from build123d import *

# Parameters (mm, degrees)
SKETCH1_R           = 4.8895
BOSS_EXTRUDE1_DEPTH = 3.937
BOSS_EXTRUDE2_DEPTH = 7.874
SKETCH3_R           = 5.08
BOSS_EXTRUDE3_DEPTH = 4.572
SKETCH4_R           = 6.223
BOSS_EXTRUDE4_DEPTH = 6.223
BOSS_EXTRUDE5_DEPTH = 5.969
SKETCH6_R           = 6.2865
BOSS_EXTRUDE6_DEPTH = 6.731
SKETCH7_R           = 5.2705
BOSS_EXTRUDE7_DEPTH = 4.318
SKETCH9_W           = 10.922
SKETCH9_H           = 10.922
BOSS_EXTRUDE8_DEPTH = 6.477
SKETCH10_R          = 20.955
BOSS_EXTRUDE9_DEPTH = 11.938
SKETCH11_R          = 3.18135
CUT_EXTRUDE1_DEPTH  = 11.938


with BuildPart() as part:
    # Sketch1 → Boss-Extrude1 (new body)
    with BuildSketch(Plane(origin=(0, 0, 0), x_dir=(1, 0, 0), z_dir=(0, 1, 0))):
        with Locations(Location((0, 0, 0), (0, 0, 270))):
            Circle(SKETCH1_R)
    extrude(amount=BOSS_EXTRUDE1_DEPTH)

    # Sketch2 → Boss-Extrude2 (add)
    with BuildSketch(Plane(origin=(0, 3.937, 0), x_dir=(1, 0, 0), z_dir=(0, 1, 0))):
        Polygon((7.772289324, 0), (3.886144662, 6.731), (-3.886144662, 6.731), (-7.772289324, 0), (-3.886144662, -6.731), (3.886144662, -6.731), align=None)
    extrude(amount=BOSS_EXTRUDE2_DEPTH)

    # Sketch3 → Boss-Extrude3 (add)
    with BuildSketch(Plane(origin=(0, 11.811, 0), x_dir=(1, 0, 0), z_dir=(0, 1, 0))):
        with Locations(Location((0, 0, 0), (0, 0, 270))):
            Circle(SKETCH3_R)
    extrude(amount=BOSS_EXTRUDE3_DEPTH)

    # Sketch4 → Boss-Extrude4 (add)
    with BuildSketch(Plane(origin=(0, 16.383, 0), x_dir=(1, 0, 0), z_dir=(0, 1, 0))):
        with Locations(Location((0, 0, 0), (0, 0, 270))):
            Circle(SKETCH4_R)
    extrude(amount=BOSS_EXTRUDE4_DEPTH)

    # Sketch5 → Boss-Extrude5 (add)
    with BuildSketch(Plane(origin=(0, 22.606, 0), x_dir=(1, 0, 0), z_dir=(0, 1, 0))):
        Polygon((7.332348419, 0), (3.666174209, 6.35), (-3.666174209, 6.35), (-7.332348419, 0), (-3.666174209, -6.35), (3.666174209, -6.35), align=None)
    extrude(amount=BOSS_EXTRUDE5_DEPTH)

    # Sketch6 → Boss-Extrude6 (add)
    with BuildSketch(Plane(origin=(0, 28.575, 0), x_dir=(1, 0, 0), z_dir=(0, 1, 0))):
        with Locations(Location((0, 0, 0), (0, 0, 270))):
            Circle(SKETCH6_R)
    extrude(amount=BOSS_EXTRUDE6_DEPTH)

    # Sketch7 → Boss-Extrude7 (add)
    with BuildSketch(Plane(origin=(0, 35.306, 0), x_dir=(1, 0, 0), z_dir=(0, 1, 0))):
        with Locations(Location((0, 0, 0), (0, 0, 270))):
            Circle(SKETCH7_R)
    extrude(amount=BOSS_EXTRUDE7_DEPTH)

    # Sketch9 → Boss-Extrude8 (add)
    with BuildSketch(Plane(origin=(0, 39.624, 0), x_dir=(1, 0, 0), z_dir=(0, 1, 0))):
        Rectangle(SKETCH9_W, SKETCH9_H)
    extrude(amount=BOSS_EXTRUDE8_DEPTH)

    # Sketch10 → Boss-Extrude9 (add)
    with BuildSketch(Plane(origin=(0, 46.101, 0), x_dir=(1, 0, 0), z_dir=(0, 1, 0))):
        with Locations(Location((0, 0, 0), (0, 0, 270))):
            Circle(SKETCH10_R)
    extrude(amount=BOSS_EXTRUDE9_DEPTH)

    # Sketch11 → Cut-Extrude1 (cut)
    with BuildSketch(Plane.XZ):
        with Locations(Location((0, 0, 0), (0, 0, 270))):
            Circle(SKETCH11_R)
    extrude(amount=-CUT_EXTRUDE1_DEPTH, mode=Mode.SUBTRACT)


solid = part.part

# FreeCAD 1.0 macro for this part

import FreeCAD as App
import Part
import Sketcher
Q = App.Units.Quantity


def add_polygon(sketch, points):
    """Adds a closed chain of lines whose ends are joined by coincident constraints."""
    first, n = sketch.GeometryCount, len(points)
    for a, b in zip(points, points[1:] + points[:1]):
        sketch.addGeometry(Part.LineSegment(App.Vector(*a, 0), App.Vector(*b, 0)), False)
    for i in range(n):
        sketch.addConstraint(Sketcher.Constraint("Coincident", first + i, 2, first + (i + 1) % n, 1))

doc = App.newDocument("Part")
body = doc.addObject("PartDesign::Body", "Body")

# Sketch on XZ plane
sketch1 = doc.addObject("Sketcher::SketchObject", "Sketch")
body.addObject(sketch1)
sketch1.AttachmentSupport = (doc.XZ_Plane, [""])
sketch1.MapMode = "FlatFace"
sketch1.addGeometry(Part.Circle(App.Vector(0, 0, 0), App.Vector(0, 0, 1), 4.9), False)
sketch1.addConstraint(Sketcher.Constraint("Coincident", 0, 3, -1, 1))
sketch1.addConstraint(Sketcher.Constraint("Diameter", 0, Q("0.385 in")))
pad1 = doc.addObject("PartDesign::Pad", "Pad")
body.addObject(pad1)
pad1.Profile = sketch1
pad1.Length = Q("0.155 in")
pad1.Reversed = True

# Sketch on XZ plane
sketch2 = doc.addObject("Sketcher::SketchObject", "Sketch001")
body.addObject(sketch2)
sketch2.AttachmentSupport = (doc.XZ_Plane, [""])
sketch2.MapMode = "FlatFace"
sketch2.AttachmentOffset = App.Placement(App.Vector(0, 0, -0.155 * 25.4), App.Rotation())
add_polygon(sketch2, [(8, 0), (4, -7), (-4, -7), (-8, 0), (-4, 7), (4, 7)])  # lines 0-5
sketch2.addConstraint(Sketcher.Constraint("Horizontal", 1))
sketch2.addConstraint(Sketcher.Constraint("Horizontal", 4))
sketch2.addConstraint(Sketcher.Constraint("Symmetric", 0, 2, 3, 2, -1, 1))
sketch2.addConstraint(Sketcher.Constraint("Symmetric", 2, 2, 5, 2, -1, 1))
sketch2.addConstraint(Sketcher.Constraint("PointOnObject", 2, 2, -1))
sketch2.addConstraint(Sketcher.Constraint("Parallel", 2, 5))
sketch2.addConstraint(Sketcher.Constraint("Vertical", 1, 2, 3, 2))
sketch2.addConstraint(Sketcher.Constraint("Angle", 0, Q("-120 deg")))
sketch2.addConstraint(Sketcher.Constraint("DistanceY", 1, 2, 3, 2, Q("0.53 in")))
sketch2.addConstraint(Sketcher.Constraint("DistanceX", 1, 2, 1, 1, Q("7.772289 mm")))
pad2 = doc.addObject("PartDesign::Pad", "Pad001")
body.addObject(pad2)
pad2.Profile = sketch2
pad2.Length = Q("0.31 in")
pad2.Reversed = True

# Sketch on XZ plane
sketch3 = doc.addObject("Sketcher::SketchObject", "Sketch002")
body.addObject(sketch3)
sketch3.AttachmentSupport = (doc.XZ_Plane, [""])
sketch3.MapMode = "FlatFace"
sketch3.AttachmentOffset = App.Placement(App.Vector(0, 0, -0.465 * 25.4), App.Rotation())
sketch3.addGeometry(Part.Circle(App.Vector(0, 0, 0), App.Vector(0, 0, 1), 5), False)
sketch3.addConstraint(Sketcher.Constraint("Coincident", 0, 3, -1, 1))
sketch3.addConstraint(Sketcher.Constraint("Diameter", 0, Q("0.4 in")))
pad3 = doc.addObject("PartDesign::Pad", "Pad002")
body.addObject(pad3)
pad3.Profile = sketch3
pad3.Length = Q("0.18 in")
pad3.Reversed = True

# Sketch on XZ plane
sketch4 = doc.addObject("Sketcher::SketchObject", "Sketch003")
body.addObject(sketch4)
sketch4.AttachmentSupport = (doc.XZ_Plane, [""])
sketch4.MapMode = "FlatFace"
sketch4.AttachmentOffset = App.Placement(App.Vector(0, 0, -0.645 * 25.4), App.Rotation())
sketch4.addGeometry(Part.Circle(App.Vector(0, 0, 0), App.Vector(0, 0, 1), 6), False)
sketch4.addConstraint(Sketcher.Constraint("Coincident", 0, 3, -1, 1))
sketch4.addConstraint(Sketcher.Constraint("Diameter", 0, Q("0.49 in")))
pad4 = doc.addObject("PartDesign::Pad", "Pad003")
body.addObject(pad4)
pad4.Profile = sketch4
pad4.Length = Q("0.245 in")
pad4.Reversed = True

# Sketch on XZ plane
sketch5 = doc.addObject("Sketcher::SketchObject", "Sketch004")
body.addObject(sketch5)
sketch5.AttachmentSupport = (doc.XZ_Plane, [""])
sketch5.MapMode = "FlatFace"
sketch5.AttachmentOffset = App.Placement(App.Vector(0, 0, -0.89 * 25.4), App.Rotation())
add_polygon(sketch5, [(7, 0), (4, -6), (-4, -6), (-7, 0), (-4, 6), (4, 6)])  # lines 0-5
sketch5.addConstraint(Sketcher.Constraint("Horizontal", 1))
sketch5.addConstraint(Sketcher.Constraint("Horizontal", 4))
sketch5.addConstraint(Sketcher.Constraint("Symmetric", 0, 2, 3, 2, -1, 1))
sketch5.addConstraint(Sketcher.Constraint("Symmetric", 2, 2, 5, 2, -1, 1))
sketch5.addConstraint(Sketcher.Constraint("PointOnObject", 2, 2, -1))
sketch5.addConstraint(Sketcher.Constraint("Parallel", 2, 5))
sketch5.addConstraint(Sketcher.Constraint("Vertical", 1, 2, 3, 2))
sketch5.addConstraint(Sketcher.Constraint("Angle", 0, Q("-120 deg")))
sketch5.addConstraint(Sketcher.Constraint("DistanceY", 1, 2, 3, 2, Q("0.5 in")))
sketch5.addConstraint(Sketcher.Constraint("DistanceX", 1, 2, 1, 1, Q("7.332348 mm")))
pad5 = doc.addObject("PartDesign::Pad", "Pad004")
body.addObject(pad5)
pad5.Profile = sketch5
pad5.Length = Q("0.235 in")
pad5.Reversed = True

# Sketch on XZ plane
sketch6 = doc.addObject("Sketcher::SketchObject", "Sketch005")
body.addObject(sketch6)
sketch6.AttachmentSupport = (doc.XZ_Plane, [""])
sketch6.MapMode = "FlatFace"
sketch6.AttachmentOffset = App.Placement(App.Vector(0, 0, -1.125 * 25.4), App.Rotation())
sketch6.addGeometry(Part.Circle(App.Vector(0, 0, 0), App.Vector(0, 0, 1), 6), False)
sketch6.addConstraint(Sketcher.Constraint("Coincident", 0, 3, -1, 1))
sketch6.addConstraint(Sketcher.Constraint("Diameter", 0, Q("0.495 in")))
pad6 = doc.addObject("PartDesign::Pad", "Pad005")
body.addObject(pad6)
pad6.Profile = sketch6
pad6.Length = Q("0.265 in")
pad6.Reversed = True

# Sketch on XZ plane
sketch7 = doc.addObject("Sketcher::SketchObject", "Sketch006")
body.addObject(sketch7)
sketch7.AttachmentSupport = (doc.XZ_Plane, [""])
sketch7.MapMode = "FlatFace"
sketch7.AttachmentOffset = App.Placement(App.Vector(0, 0, -1.39 * 25.4), App.Rotation())
sketch7.addGeometry(Part.Circle(App.Vector(0, 0, 0), App.Vector(0, 0, 1), 5), False)
sketch7.addConstraint(Sketcher.Constraint("Coincident", 0, 3, -1, 1))
sketch7.addConstraint(Sketcher.Constraint("Diameter", 0, Q("0.415 in")))
pad7 = doc.addObject("PartDesign::Pad", "Pad006")
body.addObject(pad7)
pad7.Profile = sketch7
pad7.Length = Q("0.17 in")
pad7.Reversed = True

# Sketch on XZ plane
sketch8 = doc.addObject("Sketcher::SketchObject", "Sketch007")
body.addObject(sketch8)
sketch8.AttachmentSupport = (doc.XZ_Plane, [""])
sketch8.MapMode = "FlatFace"
sketch8.AttachmentOffset = App.Placement(App.Vector(0, 0, -1.56 * 25.4), App.Rotation())
add_polygon(sketch8, [(-5, -5), (-5, 5), (5, 5), (5, -5)])  # lines 0-3
sketch8.addConstraint(Sketcher.Constraint("Vertical", 0))
sketch8.addConstraint(Sketcher.Constraint("Horizontal", 1))
sketch8.addConstraint(Sketcher.Constraint("Vertical", 2))
sketch8.addConstraint(Sketcher.Constraint("Horizontal", 3))
sketch8.addConstraint(Sketcher.Constraint("Symmetric", 0, 2, 2, 2, -1, 1))
sketch8.addConstraint(Sketcher.Constraint("Equal", 3, 0))
sketch8.addConstraint(Sketcher.Constraint("DistanceX", 1, 1, 1, 2, Q("0.43 in")))
pad8 = doc.addObject("PartDesign::Pad", "Pad007")
body.addObject(pad8)
pad8.Profile = sketch8
pad8.Length = Q("0.255 in")
pad8.Reversed = True

# Sketch on XZ plane
sketch9 = doc.addObject("Sketcher::SketchObject", "Sketch008")
body.addObject(sketch9)
sketch9.AttachmentSupport = (doc.XZ_Plane, [""])
sketch9.MapMode = "FlatFace"
sketch9.AttachmentOffset = App.Placement(App.Vector(0, 0, -1.815 * 25.4), App.Rotation())
sketch9.addGeometry(Part.Circle(App.Vector(0, 0, 0), App.Vector(0, 0, 1), 21), False)
sketch9.addConstraint(Sketcher.Constraint("Coincident", 0, 3, -1, 1))
sketch9.addConstraint(Sketcher.Constraint("Diameter", 0, Q("1.65 in")))
pad9 = doc.addObject("PartDesign::Pad", "Pad008")
body.addObject(pad9)
pad9.Profile = sketch9
pad9.Length = Q("0.47 in")
pad9.Reversed = True

# Sketch on XZ plane
sketch10 = doc.addObject("Sketcher::SketchObject", "Sketch009")
body.addObject(sketch10)
sketch10.AttachmentSupport = (doc.XZ_Plane, [""])
sketch10.MapMode = "FlatFace"
sketch10.addGeometry(Part.Circle(App.Vector(0, 0, 0), App.Vector(0, 0, 1), 3.2), False)
sketch10.addConstraint(Sketcher.Constraint("Coincident", 0, 3, -1, 1))
sketch10.addConstraint(Sketcher.Constraint("Diameter", 0, Q("0.2505 in")))
pocket1 = doc.addObject("PartDesign::Pocket", "Pocket")
body.addObject(pocket1)
pocket1.Profile = sketch10
pocket1.Length = Q("0.47 in")

doc.recompute()
